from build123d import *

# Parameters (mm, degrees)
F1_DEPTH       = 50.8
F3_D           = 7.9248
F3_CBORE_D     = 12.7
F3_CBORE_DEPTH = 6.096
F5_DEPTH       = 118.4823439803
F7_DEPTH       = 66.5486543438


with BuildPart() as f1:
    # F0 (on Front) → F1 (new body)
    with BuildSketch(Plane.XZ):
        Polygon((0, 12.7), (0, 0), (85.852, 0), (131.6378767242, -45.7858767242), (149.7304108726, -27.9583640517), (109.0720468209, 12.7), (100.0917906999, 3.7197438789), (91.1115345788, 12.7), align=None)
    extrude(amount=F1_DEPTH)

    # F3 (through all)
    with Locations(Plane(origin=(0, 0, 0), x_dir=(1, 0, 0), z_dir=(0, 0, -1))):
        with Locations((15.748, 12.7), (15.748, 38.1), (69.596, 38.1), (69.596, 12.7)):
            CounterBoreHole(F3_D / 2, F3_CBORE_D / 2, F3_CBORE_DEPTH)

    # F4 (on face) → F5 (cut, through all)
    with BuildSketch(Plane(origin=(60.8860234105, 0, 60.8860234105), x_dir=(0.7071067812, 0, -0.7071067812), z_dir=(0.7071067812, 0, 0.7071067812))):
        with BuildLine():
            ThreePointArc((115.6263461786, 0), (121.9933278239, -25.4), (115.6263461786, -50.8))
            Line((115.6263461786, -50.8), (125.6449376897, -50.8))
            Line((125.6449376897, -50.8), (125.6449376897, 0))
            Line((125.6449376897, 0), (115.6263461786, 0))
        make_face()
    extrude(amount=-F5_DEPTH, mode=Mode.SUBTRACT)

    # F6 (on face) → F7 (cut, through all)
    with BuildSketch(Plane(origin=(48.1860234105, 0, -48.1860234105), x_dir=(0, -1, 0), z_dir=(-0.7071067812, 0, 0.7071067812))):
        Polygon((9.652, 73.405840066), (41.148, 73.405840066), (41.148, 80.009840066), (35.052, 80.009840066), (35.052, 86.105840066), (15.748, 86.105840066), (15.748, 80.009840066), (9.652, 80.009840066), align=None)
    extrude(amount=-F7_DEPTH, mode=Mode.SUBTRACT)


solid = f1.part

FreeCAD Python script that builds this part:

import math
import FreeCAD as App
import Part
import Sketcher
from FreeCAD import Vector
Q = App.Units.Quantity

doc = App.newDocument("Part")
body = doc.addObject("PartDesign::Body", "Body")

# Sketch on XZ plane
sketch1 = body.newObject("Sketcher::SketchObject", "Sketch")
sketch1.AttachmentSupport = (doc.getObject("XZ_Plane"), [""])
sketch1.MapMode = "FlatFace"
sketch1.addGeometry(Part.LineSegment(Vector(0, 12.7, 0), Vector(0, 0, 0)), False)
sketch1.addGeometry(Part.LineSegment(Vector(0, 0, 0), Vector(85.852, 0, 0)), False)
sketch1.addGeometry(Part.LineSegment(Vector(85.852, 0, 0), Vector(131.637877, -45.785877, 0)), False)
sketch1.addGeometry(Part.LineSegment(Vector(131.637877, -45.785877, 0), Vector(149.730411, -27.958364, 0)), False)
sketch1.addGeometry(Part.LineSegment(Vector(149.730411, -27.958364, 0), Vector(109.072047, 12.7, 0)), False)
sketch1.addGeometry(Part.LineSegment(Vector(109.072047, 12.7, 0), Vector(100.091791, 3.719744, 0)), False)
sketch1.addGeometry(Part.LineSegment(Vector(100.091791, 3.719744, 0), Vector(91.111535, 12.7, 0)), False)
sketch1.addGeometry(Part.LineSegment(Vector(91.111535, 12.7, 0), Vector(0, 12.7, 0)), False)
sketch1.addConstraint(Sketcher.Constraint("Coincident", 0, 2, 1, 1))
sketch1.addConstraint(Sketcher.Constraint("Coincident", 1, 2, 2, 1))
sketch1.addConstraint(Sketcher.Constraint("Coincident", 2, 2, 3, 1))
sketch1.addConstraint(Sketcher.Constraint("Coincident", 3, 2, 4, 1))
sketch1.addConstraint(Sketcher.Constraint("Coincident", 4, 2, 5, 1))
sketch1.addConstraint(Sketcher.Constraint("Coincident", 5, 2, 6, 1))
sketch1.addConstraint(Sketcher.Constraint("Coincident", 6, 2, 7, 1))
sketch1.addConstraint(Sketcher.Constraint("Coincident", 7, 2, 0, 1))
sketch1.addConstraint(Sketcher.Constraint("Vertical", 0))
sketch1.addConstraint(Sketcher.Constraint("Horizontal", 1))
sketch1.addConstraint(Sketcher.Constraint("Horizontal", 7))
sketch1.addConstraint(Sketcher.Constraint("Coincident", 0, 2, -1, 1))
sketch1.addConstraint(Sketcher.Constraint("Parallel", 2, 4))
sketch1.addConstraint(Sketcher.Constraint("Perpendicular", 4, 5))
sketch1.addConstraint(Sketcher.Constraint("Perpendicular", 5, 6))
sketch1.addConstraint(Sketcher.Constraint("Horizontal", 4, 2, 6, 2))
sketch1.addConstraint(Sketcher.Constraint("Equal", 5, 6))
sketch1.addConstraint(Sketcher.Constraint("Distance", 3, Q("1 in")))
sketch1.addConstraint(Sketcher.Constraint("DistanceY", 0, 2, 0, 1, Q("0.5 in")))
sketch1.addConstraint(Sketcher.Constraint("Distance", 5, Q("0.5 in")))
sketch1.addConstraint(Sketcher.Constraint("DistanceX", 1, 1, 1, 2, Q("3.38 in")))
sketch1.addConstraint(Sketcher.Constraint("Distance", 4, 57.49961))
sketch1.addConstraint(Sketcher.Constraint("DistanceX", 7, 2, 7, 1, 91.111535))
pad1 = body.newObject("PartDesign::Pad", "Pad")
pad1.Profile = sketch1
pad1.Length = Q("2 in")

# Sketch on XY plane
sketch2 = body.newObject("Sketcher::SketchObject", "Sketch001")
sketch2.AttachmentSupport = (doc.getObject("XY_Plane"), [""])
sketch2.MapMode = "FlatFace"
sketch2.addGeometry(Part.Circle(Vector(15.7, -12.7, 0), Vector(0, 0, 1), 4), False)
sketch2.addGeometry(Part.Circle(Vector(15.7, -38.1, 0), Vector(0, 0, 1), 4), False)
sketch2.addGeometry(Part.Circle(Vector(69.6, -38.1, 0), Vector(0, 0, 1), 4), False)
sketch2.addGeometry(Part.Circle(Vector(69.6, -12.7, 0), Vector(0, 0, 1), 4), False)
sketch2.addConstraint(Sketcher.Constraint("Equal", 0, 1))
sketch2.addConstraint(Sketcher.Constraint("Equal", 1, 2))
sketch2.addConstraint(Sketcher.Constraint("Equal", 2, 3))
sketch2.addConstraint(Sketcher.Constraint("Horizontal", 1, 3, 2, 3))
sketch2.addConstraint(Sketcher.Constraint("Horizontal", 0, 3, 3, 3))
sketch2.addConstraint(Sketcher.Constraint("Vertical", 0, 3, 1, 3))
sketch2.addConstraint(Sketcher.Constraint("Vertical", 2, 3, 3, 3))
sketch2.addConstraint(Sketcher.Constraint("Diameter", 0, Q("0.312 in")))
sketch2.addConstraint(Sketcher.Constraint("DistanceY", 1, 3, 0, 3, Q("1 in")))
sketch2.addConstraint(Sketcher.Constraint("DistanceY", 0, 3, -1, 1, Q("0.5 in")))
sketch2.addConstraint(Sketcher.Constraint("DistanceX", -1, 1, 0, 3, Q("0.62 in")))
sketch2.addConstraint(Sketcher.Constraint("DistanceX", -1, 1, 2, 3, Q("2.74 in")))
doc.recompute()
hole = body.newObject("PartDesign::Hole", "Hole")
hole.Profile = sketch2
hole.ThreadType = "None"
hole.Diameter = Q("0.312 in")
hole.DepthType = "ThroughAll"
hole.HoleCutType = "Counterbore"
hole.HoleCutDiameter = Q("0.5 in")
hole.HoleCutDepth = Q("0.24 in")
hole.Reversed = True

# Sketch on an angled plane
sketch3 = body.newObject("Sketcher::SketchObject", "Sketch002")
sketch3.Placement = App.Placement(Vector(60.886023, 0, 60.886023), App.Rotation(Vector(0.707106781, 0, -0.707106781), Vector(0, 0.999999999, 0), Vector(0.707106781, 0, 0.707106781), "ZXY"))
sketch3.addGeometry(Part.ArcOfCircle(Part.Circle(Vector(68, -25, 0), Vector(0, 0, 1), 54), math.radians(-28), math.radians(28)), False)
sketch3.addGeometry(Part.LineSegment(Vector(116, -51, 0), Vector(126, -51, 0)), False)
sketch3.addGeometry(Part.LineSegment(Vector(126, -51, 0), Vector(126, 0, 0)), False)
sketch3.addGeometry(Part.LineSegment(Vector(126, 0, 0), Vector(116, 0, 0)), False)
sketch3.addConstraint(Sketcher.Constraint("Coincident", 0, 1, 1, 1))
sketch3.addConstraint(Sketcher.Constraint("Coincident", 1, 2, 2, 1))
sketch3.addConstraint(Sketcher.Constraint("Coincident", 2, 2, 3, 1))
sketch3.addConstraint(Sketcher.Constraint("Coincident", 3, 2, 0, 2))
sketch3.addConstraint(Sketcher.Constraint("Horizontal", 1))
sketch3.addConstraint(Sketcher.Constraint("Vertical", 2))
sketch3.addConstraint(Sketcher.Constraint("Horizontal", 3))
sketch3.addConstraint(Sketcher.Constraint("PointOnObject", 2, 2, -1))
sketch3.addConstraint(Sketcher.Constraint("Vertical", 0, 1, 3, 2))
sketch3.addConstraint(Sketcher.Constraint("DistanceY", 2, 1, 2, 2, Q("2 in")))
sketch3.addConstraint(Sketcher.Constraint("Radius", 0, Q("2.12 in")))
sketch3.addConstraint(Sketcher.Constraint("DistanceX", 1, 1, 1, 2, 10.018592))
sketch3.addConstraint(Sketcher.Constraint("DistanceX", -1, 1, 0, 3, 68.145328))
pocket1 = body.newObject("PartDesign::Pocket", "Pocket")
pocket1.Profile = sketch3
pocket1.Type = "ThroughAll"

# Sketch on an angled plane
sketch4 = body.newObject("Sketcher::SketchObject", "Sketch003")
sketch4.Placement = App.Placement(Vector(48.186023, 0, -48.186023), App.Rotation(Vector(0, -1, 0), Vector(0.707106781, 0, 0.707106781), Vector(-0.707106781, 0, 0.707106781), "ZXY"))
sketch4.addGeometry(Part.LineSegment(Vector(10, 73, 0), Vector(41, 73, 0)), False)
sketch4.addGeometry(Part.LineSegment(Vector(41, 73, 0), Vector(41, 80, 0)), False)
sketch4.addGeometry(Part.LineSegment(Vector(41, 80, 0), Vector(35, 80, 0)), False)
sketch4.addGeometry(Part.LineSegment(Vector(35, 80, 0), Vector(35, 86, 0)), False)
sketch4.addGeometry(Part.LineSegment(Vector(35, 86, 0), Vector(16, 86, 0)), False)
sketch4.addGeometry(Part.LineSegment(Vector(16, 86, 0), Vector(16, 80, 0)), False)
sketch4.addGeometry(Part.LineSegment(Vector(16, 80, 0), Vector(10, 80, 0)), False)
sketch4.addGeometry(Part.LineSegment(Vector(10, 80, 0), Vector(10, 73, 0)), False)
sketch4.addConstraint(Sketcher.Constraint("Coincident", 0, 2, 1, 1))
sketch4.addConstraint(Sketcher.Constraint("Coincident", 1, 2, 2, 1))
sketch4.addConstraint(Sketcher.Constraint("Coincident", 2, 2, 3, 1))
sketch4.addConstraint(Sketcher.Constraint("Coincident", 3, 2, 4, 1))
sketch4.addConstraint(Sketcher.Constraint("Coincident", 4, 2, 5, 1))
sketch4.addConstraint(Sketcher.Constraint("Coincident", 5, 2, 6, 1))
sketch4.addConstraint(Sketcher.Constraint("Coincident", 6, 2, 7, 1))
sketch4.addConstraint(Sketcher.Constraint("Coincident", 7, 2, 0, 1))
sketch4.addConstraint(Sketcher.Constraint("Horizontal", 0))
sketch4.addConstraint(Sketcher.Constraint("Vertical", 1))
sketch4.addConstraint(Sketcher.Constraint("Horizontal", 2))
sketch4.addConstraint(Sketcher.Constraint("Vertical", 3))
sketch4.addConstraint(Sketcher.Constraint("Horizontal", 4))
sketch4.addConstraint(Sketcher.Constraint("Vertical", 5))
sketch4.addConstraint(Sketcher.Constraint("Horizontal", 6))
sketch4.addConstraint(Sketcher.Constraint("Vertical", 7))
sketch4.addConstraint(Sketcher.Constraint("Horizontal", 2, 2, 5, 2))
sketch4.addConstraint(Sketcher.Constraint("Equal", 2, 6))
sketch4.addConstraint(Sketcher.Constraint("Equal", 6, 3))
sketch4.addConstraint(Sketcher.Constraint("DistanceX", 4, 2, 1, 2, Q("1 in")))
sketch4.addConstraint(Sketcher.Constraint("DistanceX", 0, 1, 0, 2, Q("1.24 in")))
sketch4.addConstraint(Sketcher.Constraint("DistanceY", 1, 1, 1, 2, Q("0.26 in")))
sketch4.addConstraint(Sketcher.Constraint("DistanceX", -1, 1, 0, 2, Q("1.62 in")))
sketch4.addConstraint(Sketcher.Constraint("DistanceY", -1, 1, 0, 2, 73.40584))
pocket2 = body.newObject("PartDesign::Pocket", "Pocket001")
pocket2.Profile = sketch4
pocket2.Type = "ThroughAll"

doc.recompute()
